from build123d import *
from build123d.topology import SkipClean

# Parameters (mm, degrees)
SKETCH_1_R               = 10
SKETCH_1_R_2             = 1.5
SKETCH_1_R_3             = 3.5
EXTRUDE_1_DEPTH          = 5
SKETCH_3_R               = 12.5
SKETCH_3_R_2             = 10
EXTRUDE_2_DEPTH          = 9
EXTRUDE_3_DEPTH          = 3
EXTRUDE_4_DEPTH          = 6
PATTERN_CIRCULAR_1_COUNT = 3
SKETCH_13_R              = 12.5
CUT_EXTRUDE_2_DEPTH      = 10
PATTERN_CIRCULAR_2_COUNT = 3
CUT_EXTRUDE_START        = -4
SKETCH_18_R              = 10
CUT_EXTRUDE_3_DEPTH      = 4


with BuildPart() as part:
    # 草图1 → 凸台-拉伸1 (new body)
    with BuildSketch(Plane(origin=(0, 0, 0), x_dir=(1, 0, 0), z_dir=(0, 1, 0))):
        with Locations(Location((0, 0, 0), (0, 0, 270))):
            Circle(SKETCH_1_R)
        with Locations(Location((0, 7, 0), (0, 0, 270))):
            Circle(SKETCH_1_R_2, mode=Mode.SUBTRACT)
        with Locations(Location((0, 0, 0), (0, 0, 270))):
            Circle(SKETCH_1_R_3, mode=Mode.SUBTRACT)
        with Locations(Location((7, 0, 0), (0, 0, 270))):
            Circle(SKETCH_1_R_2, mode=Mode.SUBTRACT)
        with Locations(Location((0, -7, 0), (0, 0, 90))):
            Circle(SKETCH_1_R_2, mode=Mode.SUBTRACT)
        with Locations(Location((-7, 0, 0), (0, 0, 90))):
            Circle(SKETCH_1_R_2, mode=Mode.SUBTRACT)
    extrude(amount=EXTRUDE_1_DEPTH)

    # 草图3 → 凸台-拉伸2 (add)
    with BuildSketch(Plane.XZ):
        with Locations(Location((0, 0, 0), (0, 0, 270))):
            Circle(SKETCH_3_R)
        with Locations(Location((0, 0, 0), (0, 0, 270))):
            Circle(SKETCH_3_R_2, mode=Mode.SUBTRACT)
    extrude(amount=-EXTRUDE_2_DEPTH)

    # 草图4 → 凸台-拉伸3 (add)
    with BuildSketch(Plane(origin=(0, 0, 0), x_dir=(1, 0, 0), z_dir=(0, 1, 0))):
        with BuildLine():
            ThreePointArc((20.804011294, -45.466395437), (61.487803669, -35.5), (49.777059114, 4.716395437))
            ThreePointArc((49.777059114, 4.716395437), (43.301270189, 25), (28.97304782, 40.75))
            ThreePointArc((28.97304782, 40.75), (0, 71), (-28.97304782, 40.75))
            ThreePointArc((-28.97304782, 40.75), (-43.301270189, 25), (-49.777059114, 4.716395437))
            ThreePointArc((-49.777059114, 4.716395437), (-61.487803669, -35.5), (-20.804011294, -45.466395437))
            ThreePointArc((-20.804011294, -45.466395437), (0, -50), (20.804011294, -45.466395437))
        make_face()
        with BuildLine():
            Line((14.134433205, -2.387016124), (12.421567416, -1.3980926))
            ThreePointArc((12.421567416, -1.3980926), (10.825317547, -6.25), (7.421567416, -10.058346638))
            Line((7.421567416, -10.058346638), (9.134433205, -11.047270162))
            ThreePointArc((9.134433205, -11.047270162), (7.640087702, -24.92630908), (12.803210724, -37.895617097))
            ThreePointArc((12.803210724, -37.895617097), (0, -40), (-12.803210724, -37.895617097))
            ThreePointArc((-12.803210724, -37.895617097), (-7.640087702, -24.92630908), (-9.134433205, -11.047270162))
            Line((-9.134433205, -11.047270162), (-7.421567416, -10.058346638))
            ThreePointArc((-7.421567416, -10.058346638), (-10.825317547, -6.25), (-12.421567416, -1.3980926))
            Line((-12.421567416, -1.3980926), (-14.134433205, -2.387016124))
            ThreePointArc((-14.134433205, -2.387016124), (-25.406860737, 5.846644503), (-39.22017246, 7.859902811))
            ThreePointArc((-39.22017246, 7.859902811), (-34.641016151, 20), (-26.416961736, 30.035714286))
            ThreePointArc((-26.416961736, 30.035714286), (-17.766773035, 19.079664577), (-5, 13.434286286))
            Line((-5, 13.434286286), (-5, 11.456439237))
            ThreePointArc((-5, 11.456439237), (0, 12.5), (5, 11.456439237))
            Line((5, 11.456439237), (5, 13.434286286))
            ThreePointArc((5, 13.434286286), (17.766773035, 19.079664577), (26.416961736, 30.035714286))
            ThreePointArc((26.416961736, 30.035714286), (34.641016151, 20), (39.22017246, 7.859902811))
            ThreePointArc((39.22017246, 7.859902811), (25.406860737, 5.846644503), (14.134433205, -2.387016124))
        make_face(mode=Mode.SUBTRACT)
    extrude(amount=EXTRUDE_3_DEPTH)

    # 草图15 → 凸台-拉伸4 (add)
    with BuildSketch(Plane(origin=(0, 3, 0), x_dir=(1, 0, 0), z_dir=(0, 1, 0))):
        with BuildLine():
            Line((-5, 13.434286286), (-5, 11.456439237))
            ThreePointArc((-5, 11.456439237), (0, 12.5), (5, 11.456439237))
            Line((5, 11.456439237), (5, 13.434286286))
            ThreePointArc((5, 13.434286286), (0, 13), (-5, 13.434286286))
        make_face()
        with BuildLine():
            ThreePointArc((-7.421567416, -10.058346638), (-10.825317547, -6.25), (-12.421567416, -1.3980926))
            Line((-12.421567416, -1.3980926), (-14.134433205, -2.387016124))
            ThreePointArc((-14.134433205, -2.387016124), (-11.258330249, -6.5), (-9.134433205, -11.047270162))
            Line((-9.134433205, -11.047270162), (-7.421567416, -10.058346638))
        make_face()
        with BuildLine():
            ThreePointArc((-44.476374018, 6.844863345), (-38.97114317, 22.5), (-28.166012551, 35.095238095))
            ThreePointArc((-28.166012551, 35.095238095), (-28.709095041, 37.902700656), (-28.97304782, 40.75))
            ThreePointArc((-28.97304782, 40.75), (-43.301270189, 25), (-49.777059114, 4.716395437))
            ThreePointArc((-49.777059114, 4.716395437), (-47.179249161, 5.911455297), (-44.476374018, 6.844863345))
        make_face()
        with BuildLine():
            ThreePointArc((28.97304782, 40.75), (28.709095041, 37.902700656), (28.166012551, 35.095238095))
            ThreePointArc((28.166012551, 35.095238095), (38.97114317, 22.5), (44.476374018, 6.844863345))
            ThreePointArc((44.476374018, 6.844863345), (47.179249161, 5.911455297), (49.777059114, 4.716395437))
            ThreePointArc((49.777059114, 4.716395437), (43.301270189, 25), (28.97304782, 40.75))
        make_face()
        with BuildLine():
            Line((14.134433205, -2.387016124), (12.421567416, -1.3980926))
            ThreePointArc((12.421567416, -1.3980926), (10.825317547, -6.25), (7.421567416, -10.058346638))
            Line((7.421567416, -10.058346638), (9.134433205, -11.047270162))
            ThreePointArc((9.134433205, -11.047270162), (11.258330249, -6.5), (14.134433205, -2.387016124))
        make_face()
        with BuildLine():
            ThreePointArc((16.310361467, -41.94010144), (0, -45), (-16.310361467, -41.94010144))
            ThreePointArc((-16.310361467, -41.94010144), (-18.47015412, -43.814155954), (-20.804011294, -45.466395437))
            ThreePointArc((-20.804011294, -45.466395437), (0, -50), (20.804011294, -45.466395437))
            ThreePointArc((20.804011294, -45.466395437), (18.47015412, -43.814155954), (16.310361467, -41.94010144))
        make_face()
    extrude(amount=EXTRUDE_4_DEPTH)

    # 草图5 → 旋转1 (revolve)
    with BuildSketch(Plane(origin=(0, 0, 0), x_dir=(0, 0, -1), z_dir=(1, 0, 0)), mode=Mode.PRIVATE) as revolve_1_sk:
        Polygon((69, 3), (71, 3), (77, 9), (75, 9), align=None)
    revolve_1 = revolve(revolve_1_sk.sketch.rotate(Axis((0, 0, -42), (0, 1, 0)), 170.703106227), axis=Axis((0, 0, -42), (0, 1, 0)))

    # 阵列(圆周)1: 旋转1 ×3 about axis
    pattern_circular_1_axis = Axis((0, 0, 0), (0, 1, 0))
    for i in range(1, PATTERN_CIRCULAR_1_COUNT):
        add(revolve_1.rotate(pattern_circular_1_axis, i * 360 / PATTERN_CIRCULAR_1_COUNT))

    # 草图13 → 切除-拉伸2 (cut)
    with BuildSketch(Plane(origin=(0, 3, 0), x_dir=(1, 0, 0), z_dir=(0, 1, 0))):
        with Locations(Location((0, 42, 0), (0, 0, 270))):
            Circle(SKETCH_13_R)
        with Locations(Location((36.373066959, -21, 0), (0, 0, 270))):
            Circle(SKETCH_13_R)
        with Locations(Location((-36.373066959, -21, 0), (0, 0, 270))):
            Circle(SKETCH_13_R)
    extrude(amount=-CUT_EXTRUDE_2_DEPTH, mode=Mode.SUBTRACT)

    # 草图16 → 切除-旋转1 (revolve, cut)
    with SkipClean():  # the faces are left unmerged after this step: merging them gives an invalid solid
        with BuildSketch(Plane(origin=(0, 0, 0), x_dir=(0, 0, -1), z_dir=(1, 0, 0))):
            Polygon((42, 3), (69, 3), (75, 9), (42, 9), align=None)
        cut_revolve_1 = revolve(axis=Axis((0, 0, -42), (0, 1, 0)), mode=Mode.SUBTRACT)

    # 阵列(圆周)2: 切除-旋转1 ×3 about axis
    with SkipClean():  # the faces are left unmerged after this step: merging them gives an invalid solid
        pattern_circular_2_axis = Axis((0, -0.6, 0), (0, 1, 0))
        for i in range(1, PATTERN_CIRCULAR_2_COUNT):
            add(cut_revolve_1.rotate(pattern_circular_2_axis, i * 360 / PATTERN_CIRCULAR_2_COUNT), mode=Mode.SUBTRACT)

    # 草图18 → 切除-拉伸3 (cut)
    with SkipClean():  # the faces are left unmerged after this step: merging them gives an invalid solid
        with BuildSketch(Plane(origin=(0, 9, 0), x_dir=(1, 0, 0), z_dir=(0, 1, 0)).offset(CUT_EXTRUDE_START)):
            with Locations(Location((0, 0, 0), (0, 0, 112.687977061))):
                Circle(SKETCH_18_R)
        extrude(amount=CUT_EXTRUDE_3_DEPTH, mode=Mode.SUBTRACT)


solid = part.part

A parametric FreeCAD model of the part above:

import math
import FreeCAD as App
import Part
import Sketcher

V = App.Vector
Q = App.Units.Quantity


def add_polygon(sketch, points):
    """Adds a closed chain of lines whose ends are joined by coincident constraints."""
    first, n = sketch.GeometryCount, len(points)
    for a, b in zip(points, points[1:] + points[:1]):
        sketch.addGeometry(Part.LineSegment(App.Vector(*a, 0), App.Vector(*b, 0)), False)
    for i in range(n):
        sketch.addConstraint(Sketcher.Constraint("Coincident", first + i, 2, first + (i + 1) % n, 1))

doc = App.newDocument("Part")
body = doc.addObject("PartDesign::Body", "Body")

# Sketch on XZ plane
sketch1 = body.newObject("Sketcher::SketchObject", "Sketch")
sketch1.AttachmentSupport = (doc.getObject("XZ_Plane"), [""])
sketch1.MapMode = "FlatFace"
sketch1.addGeometry(Part.Circle(V(0, 0, 0), V(0, 0, 1), 10), False)
sketch1.addGeometry(Part.Circle(V(0, -7, 0), V(0, 0, 1), 1.5), False)
sketch1.addGeometry(Part.Circle(V(-7, 0, 0), V(0, 0, 1), 1.5), False)
sketch1.addGeometry(Part.Circle(V(7, 0, 0), V(0, 0, 1), 1.5), False)
sketch1.addGeometry(Part.Circle(V(0, 0, 0), V(0, 0, 1), 3.5), False)
sketch1.addGeometry(Part.Circle(V(0, 7, 0), V(0, 0, 1), 1.5), False)
sketch1.addConstraint(Sketcher.Constraint("Coincident", 0, 3, -1, 1))
sketch1.addConstraint(Sketcher.Constraint("Coincident", 4, 3, -1, 1))
sketch1.addConstraint(Sketcher.Constraint("Equal", 1, 2))
sketch1.addConstraint(Sketcher.Constraint("Equal", 2, 3))
sketch1.addConstraint(Sketcher.Constraint("Equal", 3, 5))
sketch1.addConstraint(Sketcher.Constraint("Symmetric", 2, 3, 3, 3, -1, 1))
sketch1.addConstraint(Sketcher.Constraint("Symmetric", 1, 3, 5, 3, -1, 1))
sketch1.addConstraint(Sketcher.Constraint("PointOnObject", 1, 3, -2))
sketch1.addConstraint(Sketcher.Constraint("PointOnObject", 2, 3, -1))
sketch1.addConstraint(Sketcher.Constraint("Diameter", 0, Q("20 mm")))
sketch1.addConstraint(Sketcher.Constraint("Diameter", 1, Q("3 mm")))
sketch1.addConstraint(Sketcher.Constraint("Diameter", 4, Q("7 mm")))
sketch1.addConstraint(Sketcher.Constraint("DistanceY", 1, 3, -1, 1, Q("7 mm")))
sketch1.addConstraint(Sketcher.Constraint("DistanceX", 2, 3, -1, 1, Q("7 mm")))
pad1 = body.newObject("PartDesign::Pad", "Pad")
pad1.Profile = sketch1
pad1.Length = 5
pad1.Reversed = True

# Sketch on XZ plane
sketch2 = body.newObject("Sketcher::SketchObject", "Sketch001")
sketch2.AttachmentSupport = (doc.getObject("XZ_Plane"), [""])
sketch2.MapMode = "FlatFace"
sketch2.addGeometry(Part.Circle(V(0, 0, 0), V(0, 0, 1), 12), False)
sketch2.addGeometry(Part.Circle(V(0, 0, 0), V(0, 0, 1), 10), False)
sketch2.addConstraint(Sketcher.Constraint("Coincident", 0, 3, -1, 1))
sketch2.addConstraint(Sketcher.Constraint("Coincident", 1, 3, -1, 1))
sketch2.addConstraint(Sketcher.Constraint("Diameter", 0, Q("25 mm")))
sketch2.addConstraint(Sketcher.Constraint("Diameter", 1, Q("20 mm")))
pad2 = body.newObject("PartDesign::Pad", "Pad001")
pad2.Profile = sketch2
pad2.Length = 9
pad2.Reversed = True

# Sketch on XZ plane
sketch3 = body.newObject("Sketcher::SketchObject", "Sketch002")
sketch3.AttachmentSupport = (doc.getObject("XZ_Plane"), [""])
sketch3.MapMode = "FlatFace"
sketch3.addGeometry(Part.ArcOfCircle(Part.Circle(V(36.4, 21, 0), V(0, 0, 1), 29), math.radians(-62), math.radians(122)), False)
sketch3.addGeometry(Part.ArcOfCircle(Part.Circle(V(0, 0, 0), V(0, 0, 1), 50), math.radians(-55), math.radians(-5)), False)
sketch3.addGeometry(Part.ArcOfCircle(Part.Circle(V(0, -42, 0), V(0, 0, 1), 29), math.radians(178), math.radians(362)), False)
sketch3.addGeometry(Part.ArcOfCircle(Part.Circle(V(0, 0, 0), V(0, 0, 1), 50), math.radians(-175), math.radians(-125)), False)
sketch3.addGeometry(Part.ArcOfCircle(Part.Circle(V(-36.4, 21, 0), V(0, 0, 1), 29), math.radians(58), math.radians(242)), False)
sketch3.addGeometry(Part.ArcOfCircle(Part.Circle(V(0, 0, 0), V(0, 0, 1), 50), math.radians(65), math.radians(115)), False)
sketch3.addGeometry(Part.ArcOfCircle(Part.Circle(V(36.4, 21, 0), V(0, 0, 1), 29), math.radians(-140), math.radians(-84)), False)
sketch3.addGeometry(Part.LineSegment(V(14.1, 2.4, 0), V(12.4, 1.4, 0)), False)
sketch3.addGeometry(Part.ArcOfCircle(Part.Circle(V(0, 0, 0), V(0, 0, 1), 12.5), math.radians(6), math.radians(54)), False)
sketch3.addGeometry(Part.LineSegment(V(7.4, 10.1, 0), V(9.1, 11, 0)), False)
sketch3.addGeometry(Part.ArcOfCircle(Part.Circle(V(36.4, 21, 0), V(0, 0, 1), 29), math.radians(144), math.radians(200)), False)
sketch3.addGeometry(Part.ArcOfCircle(Part.Circle(V(0, 0, 0), V(0, 0, 1), 40), math.radians(71), math.radians(109)), False)
sketch3.addGeometry(Part.ArcOfCircle(Part.Circle(V(-36.4, 21, 0), V(0, 0, 1), 29), math.radians(-20), math.radians(36)), False)
sketch3.addGeometry(Part.LineSegment(V(-9.1, 11, 0), V(-7.4, 10.1, 0)), False)
sketch3.addGeometry(Part.ArcOfCircle(Part.Circle(V(0, 0, 0), V(0, 0, 1), 12.5), math.radians(126), math.radians(174)), False)
sketch3.addGeometry(Part.LineSegment(V(-12.4, 1.4, 0), V(-14.1, 2.4, 0)), False)
sketch3.addGeometry(Part.ArcOfCircle(Part.Circle(V(-36.4, 21, 0), V(0, 0, 1), 29), math.radians(-96), math.radians(-40)), False)
sketch3.addGeometry(Part.ArcOfCircle(Part.Circle(V(0, 0, 0), V(0, 0, 1), 40), math.radians(-169), math.radians(-131)), False)
sketch3.addGeometry(Part.ArcOfCircle(Part.Circle(V(0, -42, 0), V(0, 0, 1), 29), math.radians(100), math.radians(156)), False)
sketch3.addGeometry(Part.LineSegment(V(-5, -13.4, 0), V(-5, -11.5, 0)), False)
sketch3.addGeometry(Part.ArcOfCircle(Part.Circle(V(0, 0, 0), V(0, 0, 1), 12.5), math.radians(-114), math.radians(-66)), False)
sketch3.addGeometry(Part.LineSegment(V(5, -11.5, 0), V(5, -13.4, 0)), False)
sketch3.addGeometry(Part.ArcOfCircle(Part.Circle(V(0, -42, 0), V(0, 0, 1), 29), math.radians(24), math.radians(80)), False)
sketch3.addGeometry(Part.ArcOfCircle(Part.Circle(V(0, 0, 0), V(0, 0, 1), 40), math.radians(-49), math.radians(-11)), False)
sketch3.addConstraint(Sketcher.Constraint("Coincident", 0, 1, 1, 2))
sketch3.addConstraint(Sketcher.Constraint("Coincident", 1, 1, 2, 2))
sketch3.addConstraint(Sketcher.Constraint("Coincident", 2, 1, 3, 2))
sketch3.addConstraint(Sketcher.Constraint("Coincident", 3, 1, 4, 2))
sketch3.addConstraint(Sketcher.Constraint("Coincident", 4, 1, 5, 2))
sketch3.addConstraint(Sketcher.Constraint("Coincident", 5, 1, 0, 2))
sketch3.addConstraint(Sketcher.Constraint("Coincident", 6, 1, 7, 1))
sketch3.addConstraint(Sketcher.Constraint("Coincident", 7, 2, 8, 1))
sketch3.addConstraint(Sketcher.Constraint("Coincident", 8, 2, 9, 1))
sketch3.addConstraint(Sketcher.Constraint("Coincident", 9, 2, 10, 2))
sketch3.addConstraint(Sketcher.Constraint("Coincident", 10, 1, 11, 1))
sketch3.addConstraint(Sketcher.Constraint("Coincident", 11, 2, 12, 2))
sketch3.addConstraint(Sketcher.Constraint("Coincident", 12, 1, 13, 1))
sketch3.addConstraint(Sketcher.Constraint("Coincident", 13, 2, 14, 1))
sketch3.addConstraint(Sketcher.Constraint("Coincident", 14, 2, 15, 1))
sketch3.addConstraint(Sketcher.Constraint("Coincident", 15, 2, 16, 2))
sketch3.addConstraint(Sketcher.Constraint("Coincident", 16, 1, 17, 1))
sketch3.addConstraint(Sketcher.Constraint("Coincident", 17, 2, 18, 2))
sketch3.addConstraint(Sketcher.Constraint("Coincident", 18, 1, 19, 1))
sketch3.addConstraint(Sketcher.Constraint("Coincident", 19, 2, 20, 1))
sketch3.addConstraint(Sketcher.Constraint("Coincident", 20, 2, 21, 1))
sketch3.addConstraint(Sketcher.Constraint("Coincident", 21, 2, 22, 2))
sketch3.addConstraint(Sketcher.Constraint("Coincident", 22, 1, 23, 1))
sketch3.addConstraint(Sketcher.Constraint("Coincident", 23, 2, 6, 2))
sketch3.addConstraint(Sketcher.Constraint("Vertical", 19))
sketch3.addConstraint(Sketcher.Constraint("Vertical", 21))
sketch3.addConstraint(Sketcher.Constraint("Coincident", 1, 3, -1, 1))
sketch3.addConstraint(Sketcher.Constraint("Coincident", 3, 3, -1, 1))
sketch3.addConstraint(Sketcher.Constraint("Coincident", 5, 3, -1, 1))
sketch3.addConstraint(Sketcher.Constraint("Coincident", 8, 3, -1, 1))
sketch3.addConstraint(Sketcher.Constraint("Coincident", 11, 3, -1, 1))
sketch3.addConstraint(Sketcher.Constraint("Coincident", 14, 3, -1, 1))
sketch3.addConstraint(Sketcher.Constraint("Coincident", 17, 3, -1, 1))
sketch3.addConstraint(Sketcher.Constraint("Coincident", 20, 3, -1, 1))
sketch3.addConstraint(Sketcher.Constraint("Coincident", 23, 3, -1, 1))
sketch3.addConstraint(Sketcher.Constraint("Coincident", 6, 3, 0, 3))
sketch3.addConstraint(Sketcher.Constraint("Coincident", 10, 3, 0, 3))
sketch3.addConstraint(Sketcher.Constraint("Coincident", 12, 3, 4, 3))
sketch3.addConstraint(Sketcher.Constraint("Coincident", 16, 3, 4, 3))
sketch3.addConstraint(Sketcher.Constraint("Coincident", 18, 3, 2, 3))
sketch3.addConstraint(Sketcher.Constraint("Coincident", 22, 3, 2, 3))
sketch3.addConstraint(Sketcher.Constraint("Equal", 0, 2))
sketch3.addConstraint(Sketcher.Constraint("Equal", 1, 3))
sketch3.addConstraint(Sketcher.Constraint("Equal", 2, 4))
sketch3.addConstraint(Sketcher.Constraint("Equal", 3, 5))
sketch3.addConstraint(Sketcher.Constraint("Equal", 4, 6))
sketch3.addConstraint(Sketcher.Constraint("Equal", 6, 10))
sketch3.addConstraint(Sketcher.Constraint("Equal", 10, 12))
sketch3.addConstraint(Sketcher.Constraint("Equal", 8, 14))
sketch3.addConstraint(Sketcher.Constraint("Equal", 12, 16))
sketch3.addConstraint(Sketcher.Constraint("Equal", 11, 17))
sketch3.addConstraint(Sketcher.Constraint("Equal", 16, 18))
sketch3.addConstraint(Sketcher.Constraint("Equal", 14, 20))
sketch3.addConstraint(Sketcher.Constraint("Equal", 18, 22))
sketch3.addConstraint(Sketcher.Constraint("Equal", 17, 23))
sketch3.addConstraint(Sketcher.Constraint("Symmetric", 0, 3, 4, 3, -2))
sketch3.addConstraint(Sketcher.Constraint("Symmetric", 18, 1, 21, 2, -2))
sketch3.addConstraint(Sketcher.Constraint("Parallel", 7, 9))
sketch3.addConstraint(Sketcher.Constraint("Parallel", 13, 15))
sketch3.addConstraint(Sketcher.Constraint("Horizontal", 9, 2, 12, 1))
sketch3.addConstraint(Sketcher.Constraint("Horizontal", 8, 2, 13, 2))
sketch3.addConstraint(Sketcher.Constraint("Horizontal", 7, 2, 14, 2))
sketch3.addConstraint(Sketcher.Constraint("Equal", 7, 9))
sketch3.addConstraint(Sketcher.Constraint("Radius", 0, Q("29 mm")))
sketch3.addConstraint(Sketcher.Constraint("Radius", 1, Q("50 mm")))
sketch3.addConstraint(Sketcher.Constraint("Radius", 11, Q("40 mm")))
sketch3.addConstraint(Sketcher.Constraint("Radius", 8, Q("12.5 mm")))
sketch3.addConstraint(Sketcher.Constraint("Angle", 7, Q("-150 deg")))
sketch3.addConstraint(Sketcher.Constraint("DistanceY", -1, 1, 0, 3, Q("21 mm")))
sketch3.addConstraint(Sketcher.Constraint("DistanceY", 2, 3, -1, 1, Q("42 mm")))
sketch3.addConstraint(Sketcher.Constraint("DistanceX", 18, 1, -1, 1, Q("5 mm")))
sketch3.addConstraint(Sketcher.Constraint("DistanceX", 8, 2, 7, 2, Q("5 mm")))
sketch3.addConstraint(Sketcher.Constraint("DistanceX", 3, 1, -1, 1, Q("49.777059 mm")))
pad3 = body.newObject("PartDesign::Pad", "Pad002")
pad3.Profile = sketch3
pad3.Length = 3
pad3.Reversed = True

# Sketch on XZ plane
sketch4 = body.newObject("Sketcher::SketchObject", "Sketch003")
sketch4.AttachmentSupport = (doc.getObject("XZ_Plane"), [""])
sketch4.MapMode = "FlatFace"
sketch4.AttachmentOffset = App.Placement(V(0, 0, -3), App.Rotation())
sketch4.addGeometry(Part.LineSegment(V(-5, -13.4, 0), V(-5, -11.5, 0)), False)
sketch4.addGeometry(Part.ArcOfCircle(Part.Circle(V(0, 0, 0), V(0, 0, 1), 12.5), math.radians(-114), math.radians(-66)), False)
sketch4.addGeometry(Part.LineSegment(V(5, -11.5, 0), V(5, -13.4, 0)), False)
sketch4.addGeometry(Part.ArcOfCircle(Part.Circle(V(0, -42, 0), V(0, 0, 1), 29), math.radians(80.07), math.radians(99.93)), False)
sketch4.addGeometry(Part.ArcOfCircle(Part.Circle(V(0, 0, 0), V(0, 0, 1), 12.5), math.radians(126), math.radians(174)), False)
sketch4.addGeometry(Part.LineSegment(V(-12.4, 1.4, 0), V(-14.1, 2.4, 0)), False)
sketch4.addGeometry(Part.ArcOfCircle(Part.Circle(V(-36.4, 21, 0), V(0, 0, 1), 29), math.radians(-39.93), math.radians(-20.07)), False)
sketch4.addGeometry(Part.LineSegment(V(-9.1, 11, 0), V(-7.4, 10.1, 0)), False)
sketch4.addGeometry(Part.ArcOfCircle(Part.Circle(V(0, 0, 0), V(0, 0, 1), 45), math.radians(-171), math.radians(-129)), False)
sketch4.addGeometry(Part.ArcOfCircle(Part.Circle(V(0, -42, 0), V(0, 0, 1), 29), math.radians(166.23), math.radians(177.53)), False)
sketch4.addGeometry(Part.ArcOfCircle(Part.Circle(V(0, 0, 0), V(0, 0, 1), 50), math.radians(-175), math.radians(-125)), False)
sketch4.addGeometry(Part.ArcOfCircle(Part.Circle(V(-36.4, 21, 0), V(0, 0, 1), 29), math.radians(-117.53), math.radians(-106.23)), False)
sketch4.addGeometry(Part.ArcOfCircle(Part.Circle(V(0, -42, 0), V(0, 0, 1), 29), math.radians(2.47), math.radians(13.77)), False)
sketch4.addGeometry(Part.ArcOfCircle(Part.Circle(V(0, 0, 0), V(0, 0, 1), 45), math.radians(-51), math.radians(-9)), False)
sketch4.addGeometry(Part.ArcOfCircle(Part.Circle(V(36.4, 21, 0), V(0, 0, 1), 29), math.radians(-73.77), math.radians(-62.47)), False)
sketch4.addGeometry(Part.ArcOfCircle(Part.Circle(V(0, 0, 0), V(0, 0, 1), 50), math.radians(-55), math.radians(-5)), False)
sketch4.addGeometry(Part.LineSegment(V(14.1, 2.4, 0), V(12.4, 1.4, 0)), False)
sketch4.addGeometry(Part.ArcOfCircle(Part.Circle(V(0, 0, 0), V(0, 0, 1), 12.5), math.radians(6), math.radians(54)), False)
sketch4.addGeometry(Part.LineSegment(V(7.4, 10.1, 0), V(9.1, 11, 0)), False)
sketch4.addGeometry(Part.ArcOfCircle(Part.Circle(V(36.4, 21, 0), V(0, 0, 1), 29), math.radians(-159.93), math.radians(-140.07)), False)
sketch4.addGeometry(Part.ArcOfCircle(Part.Circle(V(0, 0, 0), V(0, 0, 1), 45), math.radians(69), math.radians(111)), False)
sketch4.addGeometry(Part.ArcOfCircle(Part.Circle(V(-36.4, 21, 0), V(0, 0, 1), 29), math.radians(46.23), math.radians(57.53)), False)
sketch4.addGeometry(Part.ArcOfCircle(Part.Circle(V(0, 0, 0), V(0, 0, 1), 50), math.radians(65), math.radians(115)), False)
sketch4.addGeometry(Part.ArcOfCircle(Part.Circle(V(36.4, 21, 0), V(0, 0, 1), 29), math.radians(122.47), math.radians(133.77)), False)
sketch4.addConstraint(Sketcher.Constraint("Coincident", 0, 2, 1, 1))
sketch4.addConstraint(Sketcher.Constraint("Coincident", 1, 2, 2, 1))
sketch4.addConstraint(Sketcher.Constraint("Coincident", 2, 2, 3, 1))
sketch4.addConstraint(Sketcher.Constraint("Coincident", 3, 2, 0, 1))
sketch4.addConstraint(Sketcher.Constraint("Coincident", 4, 2, 5, 1))
sketch4.addConstraint(Sketcher.Constraint("Coincident", 5, 2, 6, 1))
sketch4.addConstraint(Sketcher.Constraint("Coincident", 6, 2, 7, 1))
sketch4.addConstraint(Sketcher.Constraint("Coincident", 7, 2, 4, 1))
sketch4.addConstraint(Sketcher.Constraint("Coincident", 8, 2, 9, 1))
sketch4.addConstraint(Sketcher.Constraint("Coincident", 9, 2, 10, 2))
sketch4.addConstraint(Sketcher.Constraint("Coincident", 10, 1, 11, 1))
sketch4.addConstraint(Sketcher.Constraint("Coincident", 11, 2, 8, 1))
sketch4.addConstraint(Sketcher.Constraint("Coincident", 12, 2, 13, 1))
sketch4.addConstraint(Sketcher.Constraint("Coincident", 13, 2, 14, 1))
sketch4.addConstraint(Sketcher.Constraint("Coincident", 14, 2, 15, 2))
sketch4.addConstraint(Sketcher.Constraint("Coincident", 15, 1, 12, 1))
sketch4.addConstraint(Sketcher.Constraint("Coincident", 16, 2, 17, 1))
sketch4.addConstraint(Sketcher.Constraint("Coincident", 17, 2, 18, 1))
sketch4.addConstraint(Sketcher.Constraint("Coincident", 18, 2, 19, 1))
sketch4.addConstraint(Sketcher.Constraint("Coincident", 19, 2, 16, 1))
sketch4.addConstraint(Sketcher.Constraint("Coincident", 20, 2, 21, 1))
sketch4.addConstraint(Sketcher.Constraint("Coincident", 21, 2, 22, 2))
sketch4.addConstraint(Sketcher.Constraint("Coincident", 22, 1, 23, 1))
sketch4.addConstraint(Sketcher.Constraint("Coincident", 23, 2, 20, 1))
sketch4.addConstraint(Sketcher.Constraint("Vertical", 0))
sketch4.addConstraint(Sketcher.Constraint("Vertical", 2))
sketch4.addConstraint(Sketcher.Constraint("Coincident", 1, 3, -1, 1))
sketch4.addConstraint(Sketcher.Constraint("Coincident", 4, 3, -1, 1))
sketch4.addConstraint(Sketcher.Constraint("Coincident", 8, 3, -1, 1))
sketch4.addConstraint(Sketcher.Constraint("Coincident", 10, 3, -1, 1))
sketch4.addConstraint(Sketcher.Constraint("Coincident", 13, 3, -1, 1))
sketch4.addConstraint(Sketcher.Constraint("Coincident", 15, 3, -1, 1))
sketch4.addConstraint(Sketcher.Constraint("Coincident", 17, 3, -1, 1))
sketch4.addConstraint(Sketcher.Constraint("Coincident", 20, 3, -1, 1))
sketch4.addConstraint(Sketcher.Constraint("Coincident", 22, 3, -1, 1))
sketch4.addConstraint(Sketcher.Constraint("Coincident", 9, 3, 3, 3))
sketch4.addConstraint(Sketcher.Constraint("Coincident", 11, 3, 6, 3))
sketch4.addConstraint(Sketcher.Constraint("Coincident", 12, 3, 3, 3))
sketch4.addConstraint(Sketcher.Constraint("Coincident", 19, 3, 14, 3))
sketch4.addConstraint(Sketcher.Constraint("Coincident", 21, 3, 6, 3))
sketch4.addConstraint(Sketcher.Constraint("Coincident", 23, 3, 14, 3))
sketch4.addConstraint(Sketcher.Constraint("Equal", 1, 4))
sketch4.addConstraint(Sketcher.Constraint("Equal", 3, 6))
sketch4.addConstraint(Sketcher.Constraint("Equal", 6, 9))
sketch4.addConstraint(Sketcher.Constraint("Equal", 9, 11))
sketch4.addConstraint(Sketcher.Constraint("Equal", 11, 12))
sketch4.addConstraint(Sketcher.Constraint("Equal", 8, 13))
sketch4.addConstraint(Sketcher.Constraint("Equal", 12, 14))
sketch4.addConstraint(Sketcher.Constraint("Equal", 10, 15))
sketch4.addConstraint(Sketcher.Constraint("Equal", 4, 17))
sketch4.addConstraint(Sketcher.Constraint("Equal", 14, 19))
sketch4.addConstraint(Sketcher.Constraint("Equal", 13, 20))
sketch4.addConstraint(Sketcher.Constraint("Equal", 19, 21))
sketch4.addConstraint(Sketcher.Constraint("Equal", 15, 22))
sketch4.addConstraint(Sketcher.Constraint("Equal", 21, 23))
sketch4.addConstraint(Sketcher.Constraint("Symmetric", 6, 3, 14, 3, -2))
sketch4.addConstraint(Sketcher.Constraint("Symmetric", 2, 2, 3, 2, -2))
sketch4.addConstraint(Sketcher.Constraint("Parallel", 5, 7))
sketch4.addConstraint(Sketcher.Constraint("Parallel", 16, 18))
sketch4.addConstraint(Sketcher.Constraint("Horizontal", 4, 2, 16, 2))
sketch4.addConstraint(Sketcher.Constraint("Horizontal", 7, 2, 17, 2))
sketch4.addConstraint(Sketcher.Constraint("Horizontal", 6, 2, 18, 2))
sketch4.addConstraint(Sketcher.Constraint("Equal", 5, 7))
sketch4.addConstraint(Sketcher.Constraint("Radius", 3, Q("29 mm")))
sketch4.addConstraint(Sketcher.Constraint("Radius", 8, Q("45 mm")))
sketch4.addConstraint(Sketcher.Constraint("Radius", 10, Q("50 mm")))
sketch4.addConstraint(Sketcher.Constraint("Radius", 1, Q("12.5 mm")))
sketch4.addConstraint(Sketcher.Constraint("Angle", 5, Q("150 deg")))
sketch4.addConstraint(Sketcher.Constraint("DistanceY", 3, 3, -1, 1, Q("42 mm")))
sketch4.addConstraint(Sketcher.Constraint("DistanceY", -1, 1, 6, 3, Q("21 mm")))
sketch4.addConstraint(Sketcher.Constraint("DistanceX", 0, 2, -1, 1, Q("5 mm")))
sketch4.addConstraint(Sketcher.Constraint("DistanceX", 5, 2, 6, 2, Q("5 mm")))
sketch4.addConstraint(Sketcher.Constraint("DistanceY", -1, 1, 20, 2, Q("41.940101 mm")))
pad4 = body.newObject("PartDesign::Pad", "Pad003")
pad4.Profile = sketch4
pad4.Length = 6
pad4.Reversed = True

# Sketch on YZ plane
sketch5 = body.newObject("Sketcher::SketchObject", "Sketch004")
sketch5.AttachmentSupport = (doc.getObject("YZ_Plane"), [""])
sketch5.MapMode = "FlatFace"
add_polygon(sketch5, [(3, -69), (3, -71), (9, -77), (9, -75)])  # lines 0-3
sketch5.addGeometry(Part.LineSegment(V(3, -42, 0), V(9, -42, 0)), True)  # axis
sketch5.addConstraint(Sketcher.Constraint("Vertical", 0))
sketch5.addConstraint(Sketcher.Constraint("Vertical", 2))
sketch5.addConstraint(Sketcher.Constraint("Horizontal", 4))
sketch5.addConstraint(Sketcher.Constraint("Parallel", 1, 3))
sketch5.addConstraint(Sketcher.Constraint("Vertical", 3, 2, 4, 1))
sketch5.addConstraint(Sketcher.Constraint("Vertical", 2, 2, 4, 2))
sketch5.addConstraint(Sketcher.Constraint("DistanceX", 4, 1, 4, 2, Q("6 mm")))
sketch5.addConstraint(Sketcher.Constraint("DistanceY", 0, 2, 0, 1, Q("2 mm")))
sketch5.addConstraint(Sketcher.Constraint("Angle", 1, Q("-45 deg")))
sketch5.addConstraint(Sketcher.Constraint("DistanceX", -1, 1, 0, 2, Q("3 mm")))
sketch5.addConstraint(Sketcher.Constraint("DistanceY", 0, 2, -1, 1, Q("71 mm")))
sketch5.addConstraint(Sketcher.Constraint("DistanceY", 4, 1, -1, 1, Q("42 mm")))
revolution = body.newObject("PartDesign::Revolution", "Revolution")
revolution.Profile = sketch5
revolution.ReferenceAxis = (sketch5, ["Axis0"])
revolution.Angle = 360
doc.recompute()

polarpattern = body.newObject("PartDesign::PolarPattern", "PolarPattern")
polarpattern.Originals = [revolution]
polarpattern.Axis = (doc.getObject("Y_Axis"), [""])
polarpattern.Angle = 360
polarpattern.Occurrences = 3
body.Tip = polarpattern

# Sketch on XZ plane
sketch6 = body.newObject("Sketcher::SketchObject", "Sketch005")
sketch6.AttachmentSupport = (doc.getObject("XZ_Plane"), [""])
sketch6.MapMode = "FlatFace"
sketch6.AttachmentOffset = App.Placement(V(0, 0, -3), App.Rotation())
sketch6.addGeometry(Part.Circle(V(0, -42, 0), V(0, 0, 1), 12), False)
sketch6.addGeometry(Part.Circle(V(36, 21, 0), V(0, 0, 1), 12), False)
sketch6.addGeometry(Part.Circle(V(-36, 21, 0), V(0, 0, 1), 12), False)
sketch6.addConstraint(Sketcher.Constraint("Equal", 0, 1))
sketch6.addConstraint(Sketcher.Constraint("Equal", 1, 2))
sketch6.addConstraint(Sketcher.Constraint("Symmetric", 1, 3, 2, 3, -2))
sketch6.addConstraint(Sketcher.Constraint("PointOnObject", 0, 3, -2))
sketch6.addConstraint(Sketcher.Constraint("Diameter", 0, Q("25 mm")))
sketch6.addConstraint(Sketcher.Constraint("DistanceY", 0, 3, -1, 1, Q("42 mm")))
sketch6.addConstraint(Sketcher.Constraint("DistanceY", -1, 1, 1, 3, Q("21 mm")))
sketch6.addConstraint(Sketcher.Constraint("DistanceX", -1, 1, 1, 3, Q("36.373067 mm")))
pocket1 = body.newObject("PartDesign::Pocket", "Pocket")
pocket1.Profile = sketch6
pocket1.Length = 10
pocket1.Reversed = True

# Sketch on YZ plane
sketch7 = body.newObject("Sketcher::SketchObject", "Sketch006")
sketch7.AttachmentSupport = (doc.getObject("YZ_Plane"), [""])
sketch7.MapMode = "FlatFace"
add_polygon(sketch7, [(3, -42), (3, -69), (9, -75), (9, -42)])  # lines 0-3
sketch7.addGeometry(Part.LineSegment(V(3, -42, 0), V(9, -42, 0)), True)  # axis
sketch7.addConstraint(Sketcher.Constraint("Vertical", 0))
sketch7.addConstraint(Sketcher.Constraint("Vertical", 2))
sketch7.addConstraint(Sketcher.Constraint("Horizontal", 3))
sketch7.addConstraint(Sketcher.Constraint("Horizontal", 4))
sketch7.addConstraint(Sketcher.Constraint("Coincident", 4, 1, 3, 2))
sketch7.addConstraint(Sketcher.Constraint("Vertical", 1, 2, 4, 2))
sketch7.addConstraint(Sketcher.Constraint("DistanceX", 3, 2, 3, 1, Q("6 mm")))
sketch7.addConstraint(Sketcher.Constraint("DistanceY", 0, 2, 0, 1, Q("27 mm")))
sketch7.addConstraint(Sketcher.Constraint("DistanceY", 2, 1, 2, 2, Q("33 mm")))
sketch7.addConstraint(Sketcher.Constraint("DistanceX", -1, 1, 0, 2, Q("3 mm")))
sketch7.addConstraint(Sketcher.Constraint("DistanceY", 0, 2, -1, 1, Q("69 mm")))
groove = body.newObject("PartDesign::Groove", "Groove")
groove.Profile = sketch7
groove.ReferenceAxis = (sketch7, ["Axis0"])
groove.Angle = 360
doc.recompute()

polarpattern2 = body.newObject("PartDesign::PolarPattern", "PolarPattern001")
polarpattern2.Originals = [groove]
polarpattern2.Axis = (doc.getObject("Y_Axis"), [""])
polarpattern2.Angle = 360
polarpattern2.Occurrences = 3
body.Tip = polarpattern2

# Sketch on XZ plane
sketch8 = body.newObject("Sketcher::SketchObject", "Sketch007")
sketch8.AttachmentSupport = (doc.getObject("XZ_Plane"), [""])
sketch8.MapMode = "FlatFace"
sketch8.AttachmentOffset = App.Placement(V(0, 0, -5), App.Rotation())
sketch8.addGeometry(Part.Circle(V(0, 0, 0), V(0, 0, 1), 10), False)
sketch8.addConstraint(Sketcher.Constraint("Coincident", 0, 3, -1, 1))
sketch8.addConstraint(Sketcher.Constraint("Diameter", 0, Q("20 mm")))
pocket2 = body.newObject("PartDesign::Pocket", "Pocket001")
pocket2.Profile = sketch8
pocket2.Length = 4

doc.recompute()
